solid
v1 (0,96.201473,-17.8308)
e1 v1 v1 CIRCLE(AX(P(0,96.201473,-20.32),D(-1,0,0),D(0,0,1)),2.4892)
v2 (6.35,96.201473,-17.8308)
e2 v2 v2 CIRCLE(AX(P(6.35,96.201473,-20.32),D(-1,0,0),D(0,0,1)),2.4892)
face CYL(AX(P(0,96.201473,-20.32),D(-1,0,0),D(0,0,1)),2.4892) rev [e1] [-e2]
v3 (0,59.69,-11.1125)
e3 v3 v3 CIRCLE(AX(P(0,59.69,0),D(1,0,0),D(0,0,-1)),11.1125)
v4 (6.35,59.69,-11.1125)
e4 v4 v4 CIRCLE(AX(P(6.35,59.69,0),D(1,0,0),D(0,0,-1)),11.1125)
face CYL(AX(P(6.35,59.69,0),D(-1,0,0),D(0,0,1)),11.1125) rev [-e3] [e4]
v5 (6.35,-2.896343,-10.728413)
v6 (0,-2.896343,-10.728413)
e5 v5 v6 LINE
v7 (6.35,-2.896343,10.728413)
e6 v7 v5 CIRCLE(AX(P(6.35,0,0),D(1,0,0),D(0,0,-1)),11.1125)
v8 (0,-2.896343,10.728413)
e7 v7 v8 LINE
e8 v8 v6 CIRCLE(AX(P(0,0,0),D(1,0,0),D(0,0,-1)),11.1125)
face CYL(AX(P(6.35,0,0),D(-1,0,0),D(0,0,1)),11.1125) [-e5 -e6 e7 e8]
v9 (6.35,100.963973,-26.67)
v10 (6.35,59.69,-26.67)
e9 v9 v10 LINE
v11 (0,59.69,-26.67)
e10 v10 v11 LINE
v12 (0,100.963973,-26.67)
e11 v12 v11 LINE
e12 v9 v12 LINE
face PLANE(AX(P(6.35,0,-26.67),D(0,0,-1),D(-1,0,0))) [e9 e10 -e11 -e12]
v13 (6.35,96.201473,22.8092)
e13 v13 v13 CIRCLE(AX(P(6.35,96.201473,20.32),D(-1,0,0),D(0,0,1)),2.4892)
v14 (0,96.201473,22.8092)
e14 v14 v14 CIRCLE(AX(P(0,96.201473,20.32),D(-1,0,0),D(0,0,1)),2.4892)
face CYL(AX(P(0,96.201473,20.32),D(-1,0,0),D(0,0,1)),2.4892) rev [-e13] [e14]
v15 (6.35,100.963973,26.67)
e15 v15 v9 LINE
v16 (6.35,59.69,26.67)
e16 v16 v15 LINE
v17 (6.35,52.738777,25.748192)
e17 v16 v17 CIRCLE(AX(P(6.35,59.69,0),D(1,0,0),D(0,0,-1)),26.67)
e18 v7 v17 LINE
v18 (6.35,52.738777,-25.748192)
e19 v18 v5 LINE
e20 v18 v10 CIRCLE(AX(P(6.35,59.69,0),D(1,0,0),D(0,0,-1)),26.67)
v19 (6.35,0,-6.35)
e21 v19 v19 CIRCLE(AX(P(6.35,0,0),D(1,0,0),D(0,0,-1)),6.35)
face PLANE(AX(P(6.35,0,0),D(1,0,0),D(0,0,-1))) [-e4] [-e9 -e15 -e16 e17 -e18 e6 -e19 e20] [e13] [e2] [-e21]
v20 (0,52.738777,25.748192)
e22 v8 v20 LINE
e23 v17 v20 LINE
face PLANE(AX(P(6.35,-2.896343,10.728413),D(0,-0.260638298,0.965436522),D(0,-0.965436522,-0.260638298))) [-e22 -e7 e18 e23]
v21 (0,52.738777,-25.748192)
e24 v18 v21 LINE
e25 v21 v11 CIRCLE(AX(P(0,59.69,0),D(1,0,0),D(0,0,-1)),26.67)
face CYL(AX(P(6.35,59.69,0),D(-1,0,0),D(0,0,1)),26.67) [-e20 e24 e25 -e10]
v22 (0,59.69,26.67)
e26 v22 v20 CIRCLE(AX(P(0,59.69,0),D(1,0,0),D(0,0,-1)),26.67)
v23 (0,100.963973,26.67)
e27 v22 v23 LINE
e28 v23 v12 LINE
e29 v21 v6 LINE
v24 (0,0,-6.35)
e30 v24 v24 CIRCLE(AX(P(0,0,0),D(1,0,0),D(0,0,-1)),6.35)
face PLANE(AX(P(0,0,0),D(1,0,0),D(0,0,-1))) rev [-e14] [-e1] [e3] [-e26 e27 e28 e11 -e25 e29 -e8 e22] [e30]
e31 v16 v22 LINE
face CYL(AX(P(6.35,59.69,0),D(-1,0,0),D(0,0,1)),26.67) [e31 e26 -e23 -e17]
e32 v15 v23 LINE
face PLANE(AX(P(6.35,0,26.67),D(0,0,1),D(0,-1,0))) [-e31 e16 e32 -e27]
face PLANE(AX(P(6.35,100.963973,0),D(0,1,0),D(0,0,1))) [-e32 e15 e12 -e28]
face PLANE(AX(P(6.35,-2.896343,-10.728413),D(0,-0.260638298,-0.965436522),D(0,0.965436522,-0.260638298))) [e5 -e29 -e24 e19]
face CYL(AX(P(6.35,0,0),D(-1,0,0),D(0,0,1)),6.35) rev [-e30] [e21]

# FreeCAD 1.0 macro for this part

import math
import FreeCAD as App
import Part
import Sketcher
Q = App.Units.Quantity

doc = App.newDocument("Part")
body = doc.addObject("PartDesign::Body", "Body")

sketch1 = body.newObject("Sketcher::SketchObject", "Sketch")
sketch1.AttachmentSupport = (doc.getObject("YZ_Plane"), [""])
sketch1.MapMode = "FlatFace"
sketch1.addGeometry(Part.LineSegment(App.Vector(52.738777, 25.748192, 0), App.Vector(-2.896343, 10.728413, 0)), False)
sketch1.addGeometry(Part.ArcOfCircle(Part.Circle(App.Vector(0, 0, 0), App.Vector(0, 0, 1), 11.1125), math.radians(105.10794), math.radians(254.89206)), False)
sketch1.addGeometry(Part.LineSegment(App.Vector(-2.896343, -10.728413, 0), App.Vector(52.738777, -25.748192, 0)), False)
sketch1.addGeometry(Part.ArcOfCircle(Part.Circle(App.Vector(59.69, 0, 0), App.Vector(0, 0, 1), 26.67), math.radians(-105.10794), math.radians(-90)), False)
sketch1.addGeometry(Part.LineSegment(App.Vector(59.69, -26.67, 0), App.Vector(100.963973, -26.67, 0)), False)
sketch1.addGeometry(Part.LineSegment(App.Vector(100.963973, -26.67, 0), App.Vector(100.963973, 26.67, 0)), False)
sketch1.addGeometry(Part.LineSegment(App.Vector(100.963973, 26.67, 0), App.Vector(59.69, 26.67, 0)), False)
sketch1.addGeometry(Part.ArcOfCircle(Part.Circle(App.Vector(59.69, 0, 0), App.Vector(0, 0, 1), 26.67), math.radians(90), math.radians(105.10794)), False)
sketch1.addGeometry(Part.Circle(App.Vector(0, 0, 0), App.Vector(0, 0, 1), 6.35), False)
sketch1.addGeometry(Part.Circle(App.Vector(59.69, 0, 0), App.Vector(0, 0, 1), 11.1125), False)
sketch1.addConstraint(Sketcher.Constraint("Tangent", 0, 2, 1, 1))
sketch1.addConstraint(Sketcher.Constraint("Tangent", 1, 2, 2, 1))
sketch1.addConstraint(Sketcher.Constraint("Tangent", 2, 2, 3, 1))
sketch1.addConstraint(Sketcher.Constraint("Tangent", 3, 2, 4, 1))
sketch1.addConstraint(Sketcher.Constraint("Coincident", 4, 2, 5, 1))
sketch1.addConstraint(Sketcher.Constraint("Coincident", 5, 2, 6, 1))
sketch1.addConstraint(Sketcher.Constraint("Tangent", 6, 2, 7, 1))
sketch1.addConstraint(Sketcher.Constraint("Tangent", 7, 2, 0, 1))
sketch1.addConstraint(Sketcher.Constraint("Horizontal", 4))
sketch1.addConstraint(Sketcher.Constraint("Vertical", 5))
sketch1.addConstraint(Sketcher.Constraint("Horizontal", 6))
sketch1.addConstraint(Sketcher.Constraint("Coincident", 1, 3, -1, 1))
sketch1.addConstraint(Sketcher.Constraint("Coincident", 8, 3, -1, 1))
sketch1.addConstraint(Sketcher.Constraint("Coincident", 7, 3, 3, 3))
sketch1.addConstraint(Sketcher.Constraint("Coincident", 9, 3, 3, 3))
sketch1.addConstraint(Sketcher.Constraint("Equal", 3, 7))
sketch1.addConstraint(Sketcher.Constraint("Equal", 1, 9))
sketch1.addConstraint(Sketcher.Constraint("PointOnObject", 3, 3, -1))
sketch1.addConstraint(Sketcher.Constraint("Diameter", 8, Q("0.5 in")))
sketch1.addConstraint(Sketcher.Constraint("Radius", 3, Q("1.05 in")))
sketch1.addConstraint(Sketcher.Constraint("Diameter", 9, Q("0.875 in")))
sketch1.addConstraint(Sketcher.Constraint("DistanceX", -1, 1, 3, 3, Q("2.35 in")))
sketch1.addConstraint(Sketcher.Constraint("DistanceX", 4, 1, 4, 2, 41.273973))
pad1 = body.newObject("PartDesign::Pad", "Pad")
pad1.Profile = sketch1
pad1.Length = Q("0.25 in")

sketch2 = body.newObject("Sketcher::SketchObject", "Sketch001")
sketch2.AttachmentSupport = (doc.getObject("YZ_Plane"), [""])
sketch2.MapMode = "FlatFace"
sketch2.addGeometry(Part.Circle(App.Vector(96.201473, 20.32, 0), App.Vector(0, 0, 1), 2.4892), False)
sketch2.addGeometry(Part.Circle(App.Vector(96.201473, -20.32, 0), App.Vector(0, 0, 1), 2.4892), False)
sketch2.addConstraint(Sketcher.Constraint("Equal", 0, 1))
sketch2.addConstraint(Sketcher.Constraint("Symmetric", 0, 3, 1, 3, -1))
sketch2.addConstraint(Sketcher.Constraint("Diameter", 0, Q("0.196 in")))
sketch2.addConstraint(Sketcher.Constraint("DistanceY", -1, 1, 0, 3, Q("0.8 in")))
sketch2.addConstraint(Sketcher.Constraint("DistanceX", -1, 1, 0, 3, 96.201473))
doc.recompute()
hole = body.newObject("PartDesign::Hole", "Hole")
hole.Profile = sketch2
hole.ThreadType = "None"
hole.Diameter = Q("0.196 in")
hole.DepthType = "ThroughAll"
hole.Reversed = True

doc.recompute()
